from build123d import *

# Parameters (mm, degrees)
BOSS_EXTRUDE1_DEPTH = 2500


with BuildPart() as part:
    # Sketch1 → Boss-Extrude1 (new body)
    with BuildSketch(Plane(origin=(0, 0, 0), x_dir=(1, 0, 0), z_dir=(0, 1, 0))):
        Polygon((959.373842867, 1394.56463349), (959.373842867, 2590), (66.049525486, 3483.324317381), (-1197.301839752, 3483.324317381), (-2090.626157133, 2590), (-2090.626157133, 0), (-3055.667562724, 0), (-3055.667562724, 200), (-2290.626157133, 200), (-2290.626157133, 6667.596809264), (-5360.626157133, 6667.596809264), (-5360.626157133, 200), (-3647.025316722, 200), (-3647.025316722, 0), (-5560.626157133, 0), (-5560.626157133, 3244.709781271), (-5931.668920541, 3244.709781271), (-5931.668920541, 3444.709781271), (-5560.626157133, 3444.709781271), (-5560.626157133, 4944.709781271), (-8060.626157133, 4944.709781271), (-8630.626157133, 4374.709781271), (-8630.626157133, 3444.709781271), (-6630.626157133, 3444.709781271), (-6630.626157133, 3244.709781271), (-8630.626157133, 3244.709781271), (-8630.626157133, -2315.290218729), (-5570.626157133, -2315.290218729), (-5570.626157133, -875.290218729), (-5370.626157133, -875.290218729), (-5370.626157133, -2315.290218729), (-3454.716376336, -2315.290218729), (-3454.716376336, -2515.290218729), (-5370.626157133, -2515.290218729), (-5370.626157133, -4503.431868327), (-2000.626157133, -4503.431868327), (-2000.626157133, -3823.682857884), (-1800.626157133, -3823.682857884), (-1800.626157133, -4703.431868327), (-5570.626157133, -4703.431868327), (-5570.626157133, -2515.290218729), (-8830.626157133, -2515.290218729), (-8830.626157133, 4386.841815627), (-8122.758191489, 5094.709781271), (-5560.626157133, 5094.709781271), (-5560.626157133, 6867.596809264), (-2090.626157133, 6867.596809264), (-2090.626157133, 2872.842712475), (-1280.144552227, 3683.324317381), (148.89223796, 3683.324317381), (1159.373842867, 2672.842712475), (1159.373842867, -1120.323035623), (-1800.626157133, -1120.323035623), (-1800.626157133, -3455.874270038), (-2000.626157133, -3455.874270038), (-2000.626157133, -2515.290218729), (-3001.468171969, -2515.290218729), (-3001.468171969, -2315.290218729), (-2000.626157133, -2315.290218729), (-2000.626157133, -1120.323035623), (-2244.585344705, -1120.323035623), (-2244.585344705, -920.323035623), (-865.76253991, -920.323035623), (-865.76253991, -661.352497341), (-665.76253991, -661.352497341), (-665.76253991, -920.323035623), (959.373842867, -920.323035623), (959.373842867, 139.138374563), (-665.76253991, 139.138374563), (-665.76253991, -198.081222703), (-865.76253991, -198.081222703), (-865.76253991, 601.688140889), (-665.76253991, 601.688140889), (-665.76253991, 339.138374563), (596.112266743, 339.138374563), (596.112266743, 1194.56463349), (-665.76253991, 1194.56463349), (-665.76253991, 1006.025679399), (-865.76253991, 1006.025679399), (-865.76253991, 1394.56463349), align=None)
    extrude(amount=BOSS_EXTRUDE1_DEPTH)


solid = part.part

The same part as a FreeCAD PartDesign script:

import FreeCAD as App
import Part
import Sketcher

V = App.Vector
Q = App.Units.Quantity

doc = App.newDocument("Part")
body = doc.addObject("PartDesign::Body", "Body")

# Sketch on XZ plane
sketch1 = body.newObject("Sketcher::SketchObject", "Sketch")
sketch1.AttachmentSupport = (doc.getObject("XZ_Plane"), [""])
sketch1.MapMode = "FlatFace"
sketch1.addGeometry(Part.LineSegment(V(959, -2590, 0), V(959, -1395, 0)), False)
sketch1.addGeometry(Part.LineSegment(V(959, -1395, 0), V(-866, -1395, 0)), False)
sketch1.addGeometry(Part.LineSegment(V(-866, -1395, 0), V(-866, -1006, 0)), False)
sketch1.addGeometry(Part.LineSegment(V(-866, -1006, 0), V(-666, -1006, 0)), False)
sketch1.addGeometry(Part.LineSegment(V(-666, -1006, 0), V(-666, -1195, 0)), False)
sketch1.addGeometry(Part.LineSegment(V(-666, -1195, 0), V(596, -1195, 0)), False)
sketch1.addGeometry(Part.LineSegment(V(596, -1195, 0), V(596, -339, 0)), False)
sketch1.addGeometry(Part.LineSegment(V(596, -339, 0), V(-666, -339, 0)), False)
sketch1.addGeometry(Part.LineSegment(V(-666, -339, 0), V(-666, -602, 0)), False)
sketch1.addGeometry(Part.LineSegment(V(-666, -602, 0), V(-866, -602, 0)), False)
sketch1.addGeometry(Part.LineSegment(V(-866, -602, 0), V(-866, 198, 0)), False)
sketch1.addGeometry(Part.LineSegment(V(-866, 198, 0), V(-666, 198, 0)), False)
sketch1.addGeometry(Part.LineSegment(V(-666, 198, 0), V(-666, -139, 0)), False)
sketch1.addGeometry(Part.LineSegment(V(-666, -139, 0), V(959, -139, 0)), False)
sketch1.addGeometry(Part.LineSegment(V(959, -139, 0), V(959, 920, 0)), False)
sketch1.addGeometry(Part.LineSegment(V(959, 920, 0), V(-666, 920, 0)), False)
sketch1.addGeometry(Part.LineSegment(V(-666, 920, 0), V(-666, 661, 0)), False)
sketch1.addGeometry(Part.LineSegment(V(-666, 661, 0), V(-866, 661, 0)), False)
sketch1.addGeometry(Part.LineSegment(V(-866, 661, 0), V(-866, 920, 0)), False)
sketch1.addGeometry(Part.LineSegment(V(-866, 920, 0), V(-2245, 920, 0)), False)
sketch1.addGeometry(Part.LineSegment(V(-2245, 920, 0), V(-2245, 1120, 0)), False)
sketch1.addGeometry(Part.LineSegment(V(-2245, 1120, 0), V(-2001, 1120, 0)), False)
sketch1.addGeometry(Part.LineSegment(V(-2001, 1120, 0), V(-2001, 2315, 0)), False)
sketch1.addGeometry(Part.LineSegment(V(-2001, 2315, 0), V(-3001, 2315, 0)), False)
sketch1.addGeometry(Part.LineSegment(V(-3001, 2315, 0), V(-3001, 2515, 0)), False)
sketch1.addGeometry(Part.LineSegment(V(-3001, 2515, 0), V(-2001, 2515, 0)), False)
sketch1.addGeometry(Part.LineSegment(V(-2001, 2515, 0), V(-2001, 3456, 0)), False)
sketch1.addGeometry(Part.LineSegment(V(-2001, 3456, 0), V(-1801, 3456, 0)), False)
sketch1.addGeometry(Part.LineSegment(V(-1801, 3456, 0), V(-1801, 1120, 0)), False)
sketch1.addGeometry(Part.LineSegment(V(-1801, 1120, 0), V(1159, 1120, 0)), False)
sketch1.addGeometry(Part.LineSegment(V(1159, 1120, 0), V(1159, -2673, 0)), False)
sketch1.addGeometry(Part.LineSegment(V(1159, -2673, 0), V(149, -3683, 0)), False)
sketch1.addGeometry(Part.LineSegment(V(149, -3683, 0), V(-1280, -3683, 0)), False)
sketch1.addGeometry(Part.LineSegment(V(-1280, -3683, 0), V(-2091, -2873, 0)), False)
sketch1.addGeometry(Part.LineSegment(V(-2091, -2873, 0), V(-2091, -6868, 0)), False)
sketch1.addGeometry(Part.LineSegment(V(-2091, -6868, 0), V(-5561, -6868, 0)), False)
sketch1.addGeometry(Part.LineSegment(V(-5561, -6868, 0), V(-5561, -5095, 0)), False)
sketch1.addGeometry(Part.LineSegment(V(-5561, -5095, 0), V(-8123, -5095, 0)), False)
sketch1.addGeometry(Part.LineSegment(V(-8123, -5095, 0), V(-8831, -4387, 0)), False)
sketch1.addGeometry(Part.LineSegment(V(-8831, -4387, 0), V(-8831, 2515, 0)), False)
sketch1.addGeometry(Part.LineSegment(V(-8831, 2515, 0), V(-5571, 2515, 0)), False)
sketch1.addGeometry(Part.LineSegment(V(-5571, 2515, 0), V(-5571, 4703, 0)), False)
sketch1.addGeometry(Part.LineSegment(V(-5571, 4703, 0), V(-1801, 4703, 0)), False)
sketch1.addGeometry(Part.LineSegment(V(-1801, 4703, 0), V(-1801, 3824, 0)), False)
sketch1.addGeometry(Part.LineSegment(V(-1801, 3824, 0), V(-2001, 3824, 0)), False)
sketch1.addGeometry(Part.LineSegment(V(-2001, 3824, 0), V(-2001, 4503, 0)), False)
sketch1.addGeometry(Part.LineSegment(V(-2001, 4503, 0), V(-5371, 4503, 0)), False)
sketch1.addGeometry(Part.LineSegment(V(-5371, 4503, 0), V(-5371, 2515, 0)), False)
sketch1.addGeometry(Part.LineSegment(V(-5371, 2515, 0), V(-3455, 2515, 0)), False)
sketch1.addGeometry(Part.LineSegment(V(-3455, 2515, 0), V(-3455, 2315, 0)), False)
sketch1.addGeometry(Part.LineSegment(V(-3455, 2315, 0), V(-5371, 2315, 0)), False)
sketch1.addGeometry(Part.LineSegment(V(-5371, 2315, 0), V(-5371, 875, 0)), False)
sketch1.addGeometry(Part.LineSegment(V(-5371, 875, 0), V(-5571, 875, 0)), False)
sketch1.addGeometry(Part.LineSegment(V(-5571, 875, 0), V(-5571, 2315, 0)), False)
sketch1.addGeometry(Part.LineSegment(V(-5571, 2315, 0), V(-8631, 2315, 0)), False)
sketch1.addGeometry(Part.LineSegment(V(-8631, 2315, 0), V(-8631, -3245, 0)), False)
sketch1.addGeometry(Part.LineSegment(V(-8631, -3245, 0), V(-6631, -3245, 0)), False)
sketch1.addGeometry(Part.LineSegment(V(-6631, -3245, 0), V(-6631, -3445, 0)), False)
sketch1.addGeometry(Part.LineSegment(V(-6631, -3445, 0), V(-8631, -3445, 0)), False)
sketch1.addGeometry(Part.LineSegment(V(-8631, -3445, 0), V(-8631, -4375, 0)), False)
sketch1.addGeometry(Part.LineSegment(V(-8631, -4375, 0), V(-8061, -4945, 0)), False)
sketch1.addGeometry(Part.LineSegment(V(-8061, -4945, 0), V(-5561, -4945, 0)), False)
sketch1.addGeometry(Part.LineSegment(V(-5561, -4945, 0), V(-5561, -3445, 0)), False)
sketch1.addGeometry(Part.LineSegment(V(-5561, -3445, 0), V(-5932, -3445, 0)), False)
sketch1.addGeometry(Part.LineSegment(V(-5932, -3445, 0), V(-5932, -3245, 0)), False)
sketch1.addGeometry(Part.LineSegment(V(-5932, -3245, 0), V(-5561, -3245, 0)), False)
sketch1.addGeometry(Part.LineSegment(V(-5561, -3245, 0), V(-5561, 0, 0)), False)
sketch1.addGeometry(Part.LineSegment(V(-5561, 0, 0), V(-3647, 0, 0)), False)
sketch1.addGeometry(Part.LineSegment(V(-3647, 0, 0), V(-3647, -200, 0)), False)
sketch1.addGeometry(Part.LineSegment(V(-3647, -200, 0), V(-5361, -200, 0)), False)
sketch1.addGeometry(Part.LineSegment(V(-5361, -200, 0), V(-5361, -6668, 0)), False)
sketch1.addGeometry(Part.LineSegment(V(-5361, -6668, 0), V(-2291, -6668, 0)), False)
sketch1.addGeometry(Part.LineSegment(V(-2291, -6668, 0), V(-2291, -200, 0)), False)
sketch1.addGeometry(Part.LineSegment(V(-2291, -200, 0), V(-3056, -200, 0)), False)
sketch1.addGeometry(Part.LineSegment(V(-3056, -200, 0), V(-3056, 0, 0)), False)
sketch1.addGeometry(Part.LineSegment(V(-3056, 0, 0), V(-2091, 0, 0)), False)
sketch1.addGeometry(Part.LineSegment(V(-2091, 0, 0), V(-2091, -2590, 0)), False)
sketch1.addGeometry(Part.LineSegment(V(-2091, -2590, 0), V(-1197, -3483, 0)), False)
sketch1.addGeometry(Part.LineSegment(V(-1197, -3483, 0), V(66, -3483, 0)), False)
sketch1.addGeometry(Part.LineSegment(V(66, -3483, 0), V(959, -2590, 0)), False)
sketch1.addConstraint(Sketcher.Constraint("Coincident", 0, 2, 1, 1))
sketch1.addConstraint(Sketcher.Constraint("Coincident", 1, 2, 2, 1))
sketch1.addConstraint(Sketcher.Constraint("Coincident", 2, 2, 3, 1))
sketch1.addConstraint(Sketcher.Constraint("Coincident", 3, 2, 4, 1))
sketch1.addConstraint(Sketcher.Constraint("Coincident", 4, 2, 5, 1))
sketch1.addConstraint(Sketcher.Constraint("Coincident", 5, 2, 6, 1))
sketch1.addConstraint(Sketcher.Constraint("Coincident", 6, 2, 7, 1))
sketch1.addConstraint(Sketcher.Constraint("Coincident", 7, 2, 8, 1))
sketch1.addConstraint(Sketcher.Constraint("Coincident", 8, 2, 9, 1))
sketch1.addConstraint(Sketcher.Constraint("Coincident", 9, 2, 10, 1))
sketch1.addConstraint(Sketcher.Constraint("Coincident", 10, 2, 11, 1))
sketch1.addConstraint(Sketcher.Constraint("Coincident", 11, 2, 12, 1))
sketch1.addConstraint(Sketcher.Constraint("Coincident", 12, 2, 13, 1))
sketch1.addConstraint(Sketcher.Constraint("Coincident", 13, 2, 14, 1))
sketch1.addConstraint(Sketcher.Constraint("Coincident", 14, 2, 15, 1))
sketch1.addConstraint(Sketcher.Constraint("Coincident", 15, 2, 16, 1))
sketch1.addConstraint(Sketcher.Constraint("Coincident", 16, 2, 17, 1))
sketch1.addConstraint(Sketcher.Constraint("Coincident", 17, 2, 18, 1))
sketch1.addConstraint(Sketcher.Constraint("Coincident", 18, 2, 19, 1))
sketch1.addConstraint(Sketcher.Constraint("Coincident", 19, 2, 20, 1))
sketch1.addConstraint(Sketcher.Constraint("Coincident", 20, 2, 21, 1))
sketch1.addConstraint(Sketcher.Constraint("Coincident", 21, 2, 22, 1))
sketch1.addConstraint(Sketcher.Constraint("Coincident", 22, 2, 23, 1))
sketch1.addConstraint(Sketcher.Constraint("Coincident", 23, 2, 24, 1))
sketch1.addConstraint(Sketcher.Constraint("Coincident", 24, 2, 25, 1))
sketch1.addConstraint(Sketcher.Constraint("Coincident", 25, 2, 26, 1))
sketch1.addConstraint(Sketcher.Constraint("Coincident", 26, 2, 27, 1))
sketch1.addConstraint(Sketcher.Constraint("Coincident", 27, 2, 28, 1))
sketch1.addConstraint(Sketcher.Constraint("Coincident", 28, 2, 29, 1))
sketch1.addConstraint(Sketcher.Constraint("Coincident", 29, 2, 30, 1))
sketch1.addConstraint(Sketcher.Constraint("Coincident", 30, 2, 31, 1))
sketch1.addConstraint(Sketcher.Constraint("Coincident", 31, 2, 32, 1))
sketch1.addConstraint(Sketcher.Constraint("Coincident", 32, 2, 33, 1))
sketch1.addConstraint(Sketcher.Constraint("Coincident", 33, 2, 34, 1))
sketch1.addConstraint(Sketcher.Constraint("Coincident", 34, 2, 35, 1))
sketch1.addConstraint(Sketcher.Constraint("Coincident", 35, 2, 36, 1))
sketch1.addConstraint(Sketcher.Constraint("Coincident", 36, 2, 37, 1))
sketch1.addConstraint(Sketcher.Constraint("Coincident", 37, 2, 38, 1))
sketch1.addConstraint(Sketcher.Constraint("Coincident", 38, 2, 39, 1))
sketch1.addConstraint(Sketcher.Constraint("Coincident", 39, 2, 40, 1))
sketch1.addConstraint(Sketcher.Constraint("Coincident", 40, 2, 41, 1))
sketch1.addConstraint(Sketcher.Constraint("Coincident", 41, 2, 42, 1))
sketch1.addConstraint(Sketcher.Constraint("Coincident", 42, 2, 43, 1))
sketch1.addConstraint(Sketcher.Constraint("Coincident", 43, 2, 44, 1))
sketch1.addConstraint(Sketcher.Constraint("Coincident", 44, 2, 45, 1))
sketch1.addConstraint(Sketcher.Constraint("Coincident", 45, 2, 46, 1))
sketch1.addConstraint(Sketcher.Constraint("Coincident", 46, 2, 47, 1))
sketch1.addConstraint(Sketcher.Constraint("Coincident", 47, 2, 48, 1))
sketch1.addConstraint(Sketcher.Constraint("Coincident", 48, 2, 49, 1))
sketch1.addConstraint(Sketcher.Constraint("Coincident", 49, 2, 50, 1))
sketch1.addConstraint(Sketcher.Constraint("Coincident", 50, 2, 51, 1))
sketch1.addConstraint(Sketcher.Constraint("Coincident", 51, 2, 52, 1))
sketch1.addConstraint(Sketcher.Constraint("Coincident", 52, 2, 53, 1))
sketch1.addConstraint(Sketcher.Constraint("Coincident", 53, 2, 54, 1))
sketch1.addConstraint(Sketcher.Constraint("Coincident", 54, 2, 55, 1))
sketch1.addConstraint(Sketcher.Constraint("Coincident", 55, 2, 56, 1))
sketch1.addConstraint(Sketcher.Constraint("Coincident", 56, 2, 57, 1))
sketch1.addConstraint(Sketcher.Constraint("Coincident", 57, 2, 58, 1))
sketch1.addConstraint(Sketcher.Constraint("Coincident", 58, 2, 59, 1))
sketch1.addConstraint(Sketcher.Constraint("Coincident", 59, 2, 60, 1))
sketch1.addConstraint(Sketcher.Constraint("Coincident", 60, 2, 61, 1))
sketch1.addConstraint(Sketcher.Constraint("Coincident", 61, 2, 62, 1))
sketch1.addConstraint(Sketcher.Constraint("Coincident", 62, 2, 63, 1))
sketch1.addConstraint(Sketcher.Constraint("Coincident", 63, 2, 64, 1))
sketch1.addConstraint(Sketcher.Constraint("Coincident", 64, 2, 65, 1))
sketch1.addConstraint(Sketcher.Constraint("Coincident", 65, 2, 66, 1))
sketch1.addConstraint(Sketcher.Constraint("Coincident", 66, 2, 67, 1))
sketch1.addConstraint(Sketcher.Constraint("Coincident", 67, 2, 68, 1))
sketch1.addConstraint(Sketcher.Constraint("Coincident", 68, 2, 69, 1))
sketch1.addConstraint(Sketcher.Constraint("Coincident", 69, 2, 70, 1))
sketch1.addConstraint(Sketcher.Constraint("Coincident", 70, 2, 71, 1))
sketch1.addConstraint(Sketcher.Constraint("Coincident", 71, 2, 72, 1))
sketch1.addConstraint(Sketcher.Constraint("Coincident", 72, 2, 73, 1))
sketch1.addConstraint(Sketcher.Constraint("Coincident", 73, 2, 74, 1))
sketch1.addConstraint(Sketcher.Constraint("Coincident", 74, 2, 75, 1))
sketch1.addConstraint(Sketcher.Constraint("Coincident", 75, 2, 76, 1))
sketch1.addConstraint(Sketcher.Constraint("Coincident", 76, 2, 77, 1))
sketch1.addConstraint(Sketcher.Constraint("Coincident", 77, 2, 78, 1))
sketch1.addConstraint(Sketcher.Constraint("Coincident", 78, 2, 79, 1))
sketch1.addConstraint(Sketcher.Constraint("Coincident", 79, 2, 0, 1))
sketch1.addConstraint(Sketcher.Constraint("Vertical", 0))
sketch1.addConstraint(Sketcher.Constraint("Horizontal", 1))
sketch1.addConstraint(Sketcher.Constraint("Vertical", 2))
sketch1.addConstraint(Sketcher.Constraint("Horizontal", 3))
sketch1.addConstraint(Sketcher.Constraint("Vertical", 4))
sketch1.addConstraint(Sketcher.Constraint("Horizontal", 5))
sketch1.addConstraint(Sketcher.Constraint("Vertical", 6))
sketch1.addConstraint(Sketcher.Constraint("Horizontal", 7))
sketch1.addConstraint(Sketcher.Constraint("Vertical", 8))
sketch1.addConstraint(Sketcher.Constraint("Horizontal", 9))
sketch1.addConstraint(Sketcher.Constraint("Vertical", 10))
sketch1.addConstraint(Sketcher.Constraint("Horizontal", 11))
sketch1.addConstraint(Sketcher.Constraint("Vertical", 12))
sketch1.addConstraint(Sketcher.Constraint("Horizontal", 13))
sketch1.addConstraint(Sketcher.Constraint("Vertical", 14))
sketch1.addConstraint(Sketcher.Constraint("Horizontal", 15))
sketch1.addConstraint(Sketcher.Constraint("Vertical", 16))
sketch1.addConstraint(Sketcher.Constraint("Horizontal", 17))
sketch1.addConstraint(Sketcher.Constraint("Vertical", 18))
sketch1.addConstraint(Sketcher.Constraint("Horizontal", 19))
sketch1.addConstraint(Sketcher.Constraint("Vertical", 20))
sketch1.addConstraint(Sketcher.Constraint("Horizontal", 21))
sketch1.addConstraint(Sketcher.Constraint("Vertical", 22))
sketch1.addConstraint(Sketcher.Constraint("Horizontal", 23))
sketch1.addConstraint(Sketcher.Constraint("Vertical", 24))
sketch1.addConstraint(Sketcher.Constraint("Horizontal", 25))
sketch1.addConstraint(Sketcher.Constraint("Vertical", 26))
sketch1.addConstraint(Sketcher.Constraint("Horizontal", 27))
sketch1.addConstraint(Sketcher.Constraint("Vertical", 28))
sketch1.addConstraint(Sketcher.Constraint("Horizontal", 29))
sketch1.addConstraint(Sketcher.Constraint("Vertical", 30))
sketch1.addConstraint(Sketcher.Constraint("Horizontal", 32))
sketch1.addConstraint(Sketcher.Constraint("Vertical", 34))
sketch1.addConstraint(Sketcher.Constraint("Horizontal", 35))
sketch1.addConstraint(Sketcher.Constraint("Vertical", 36))
sketch1.addConstraint(Sketcher.Constraint("Horizontal", 37))
sketch1.addConstraint(Sketcher.Constraint("Vertical", 39))
sketch1.addConstraint(Sketcher.Constraint("Horizontal", 40))
sketch1.addConstraint(Sketcher.Constraint("Vertical", 41))
sketch1.addConstraint(Sketcher.Constraint("Horizontal", 42))
sketch1.addConstraint(Sketcher.Constraint("Vertical", 43))
sketch1.addConstraint(Sketcher.Constraint("Horizontal", 44))
sketch1.addConstraint(Sketcher.Constraint("Vertical", 45))
sketch1.addConstraint(Sketcher.Constraint("Horizontal", 46))
sketch1.addConstraint(Sketcher.Constraint("Vertical", 47))
sketch1.addConstraint(Sketcher.Constraint("Horizontal", 48))
sketch1.addConstraint(Sketcher.Constraint("Vertical", 49))
sketch1.addConstraint(Sketcher.Constraint("Horizontal", 50))
sketch1.addConstraint(Sketcher.Constraint("Vertical", 51))
sketch1.addConstraint(Sketcher.Constraint("Horizontal", 52))
sketch1.addConstraint(Sketcher.Constraint("Vertical", 53))
sketch1.addConstraint(Sketcher.Constraint("Horizontal", 54))
sketch1.addConstraint(Sketcher.Constraint("Vertical", 55))
sketch1.addConstraint(Sketcher.Constraint("Horizontal", 56))
sketch1.addConstraint(Sketcher.Constraint("Vertical", 57))
sketch1.addConstraint(Sketcher.Constraint("Horizontal", 58))
sketch1.addConstraint(Sketcher.Constraint("Vertical", 59))
sketch1.addConstraint(Sketcher.Constraint("Horizontal", 61))
sketch1.addConstraint(Sketcher.Constraint("Vertical", 62))
sketch1.addConstraint(Sketcher.Constraint("Horizontal", 63))
sketch1.addConstraint(Sketcher.Constraint("Vertical", 64))
sketch1.addConstraint(Sketcher.Constraint("Horizontal", 65))
sketch1.addConstraint(Sketcher.Constraint("Vertical", 66))
sketch1.addConstraint(Sketcher.Constraint("Horizontal", 67))
sketch1.addConstraint(Sketcher.Constraint("Vertical", 68))
sketch1.addConstraint(Sketcher.Constraint("Horizontal", 69))
sketch1.addConstraint(Sketcher.Constraint("Vertical", 70))
sketch1.addConstraint(Sketcher.Constraint("Horizontal", 71))
sketch1.addConstraint(Sketcher.Constraint("Vertical", 72))
sketch1.addConstraint(Sketcher.Constraint("Horizontal", 73))
sketch1.addConstraint(Sketcher.Constraint("Vertical", 74))
sketch1.addConstraint(Sketcher.Constraint("Horizontal", 75))
sketch1.addConstraint(Sketcher.Constraint("Vertical", 76))
sketch1.addConstraint(Sketcher.Constraint("Horizontal", 78))
sketch1.addConstraint(Sketcher.Constraint("PointOnObject", 66, 2, -1))
sketch1.addConstraint(Sketcher.Constraint("PointOnObject", 74, 2, -1))
sketch1.addConstraint(Sketcher.Constraint("Perpendicular", 31, 33))
sketch1.addConstraint(Sketcher.Constraint("Parallel", 33, 38))
sketch1.addConstraint(Sketcher.Constraint("Parallel", 38, 60))
sketch1.addConstraint(Sketcher.Constraint("Parallel", 60, 77))
sketch1.addConstraint(Sketcher.Constraint("Perpendicular", 77, 79))
sketch1.addConstraint(Sketcher.Constraint("Horizontal", 15, 2, 18, 2))
sketch1.addConstraint(Sketcher.Constraint("Horizontal", 21, 2, 28, 2))
sketch1.addConstraint(Sketcher.Constraint("Horizontal", 25, 2, 39, 2))
sketch1.addConstraint(Sketcher.Constraint("Horizontal", 40, 2, 47, 2))
sketch1.addConstraint(Sketcher.Constraint("Horizontal", 23, 2, 49, 2))
sketch1.addConstraint(Sketcher.Constraint("Horizontal", 50, 2, 53, 2))
sketch1.addConstraint(Sketcher.Constraint("Horizontal", 58, 2, 62, 2))
sketch1.addConstraint(Sketcher.Constraint("Horizontal", 56, 2, 64, 2))
sketch1.addConstraint(Sketcher.Constraint("Horizontal", 69, 2, 72, 2))
sketch1.addConstraint(Sketcher.Constraint("Horizontal", 76, 2, 79, 2))
sketch1.addConstraint(Sketcher.Constraint("Vertical", 4, 2, 7, 2))
sketch1.addConstraint(Sketcher.Constraint("Vertical", 2, 2, 9, 2))
sketch1.addConstraint(Sketcher.Constraint("Vertical", 8, 2, 11, 2))
sketch1.addConstraint(Sketcher.Constraint("Vertical", 0, 2, 13, 2))
sketch1.addConstraint(Sketcher.Constraint("Vertical", 12, 2, 15, 2))
sketch1.addConstraint(Sketcher.Constraint("Vertical", 10, 2, 17, 2))
sketch1.addConstraint(Sketcher.Constraint("Vertical", 22, 2, 25, 2))
sketch1.addConstraint(Sketcher.Constraint("Vertical", 28, 2, 42, 2))
sketch1.addConstraint(Sketcher.Constraint("Vertical", 26, 2, 44, 2))
sketch1.addConstraint(Sketcher.Constraint("Vertical", 47, 2, 50, 2))
sketch1.addConstraint(Sketcher.Constraint("Vertical", 41, 2, 52, 2))
sketch1.addConstraint(Sketcher.Constraint("Vertical", 55, 2, 58, 2))
sketch1.addConstraint(Sketcher.Constraint("Vertical", 36, 2, 61, 2))
sketch1.addConstraint(Sketcher.Constraint("Vertical", 62, 2, 65, 2))
sketch1.addConstraint(Sketcher.Constraint("Vertical", 34, 2, 75, 2))
sketch1.addConstraint(Sketcher.Constraint("Equal", 17, 27))
sketch1.addConstraint(Sketcher.Constraint("Equal", 44, 52))
sketch1.addConstraint(Sketcher.Constraint("Equal", 52, 20))
sketch1.addConstraint(Sketcher.Constraint("Equal", 20, 24))
sketch1.addConstraint(Sketcher.Constraint("Equal", 49, 57))
sketch1.addConstraint(Sketcher.Constraint("Equal", 64, 68))
sketch1.addConstraint(Sketcher.Constraint("Equal", 77, 79))
sketch1.addConstraint(Sketcher.Constraint("DistanceX", 3, 1, 3, 2, Q("200 mm")))
sketch1.addConstraint(Sketcher.Constraint("DistanceX", 29, 1, 29, 2, Q("2960 mm")))
sketch1.addConstraint(Sketcher.Constraint("DistanceX", 35, 2, 35, 1, Q("3470 mm")))
sketch1.addConstraint(Sketcher.Constraint("DistanceX", 40, 1, 40, 2, Q("3260 mm")))
sketch1.addConstraint(Sketcher.Constraint("DistanceX", 42, 1, 42, 2, Q("3770 mm")))
sketch1.addConstraint(Sketcher.Constraint("DistanceX", 54, 2, 54, 1, Q("3060 mm")))
sketch1.addConstraint(Sketcher.Constraint("DistanceX", 56, 1, 56, 2, Q("2000 mm")))
sketch1.addConstraint(Sketcher.Constraint("DistanceX", 61, 1, 61, 2, Q("2500 mm")))
sketch1.addConstraint(Sketcher.Constraint("DistanceX", 71, 1, 71, 2, Q("3070 mm")))
sketch1.addConstraint(Sketcher.Constraint("DistanceY", 51, 2, 51, 1, Q("1440 mm")))
sketch1.addConstraint(Sketcher.Constraint("DistanceY", 55, 2, 55, 1, Q("5560 mm")))
sketch1.addConstraint(Sketcher.Constraint("DistanceY", 59, 2, 59, 1, Q("930 mm")))
sketch1.addConstraint(Sketcher.Constraint("DistanceY", 62, 1, 62, 2, Q("1500 mm")))
sketch1.addConstraint(Sketcher.Constraint("DistanceY", 76, 2, 76, 1, Q("2590 mm")))
sketch1.addConstraint(Sketcher.Constraint("DistanceX", 32, 2, 32, 1, Q("1429.03679 mm")))
sketch1.addConstraint(Sketcher.Constraint("DistanceX", 48, 1, 48, 2, Q("1915.909781 mm")))
sketch1.addConstraint(Sketcher.Constraint("DistanceX", 67, 1, 67, 2, Q("1913.60084 mm")))
sketch1.addConstraint(Sketcher.Constraint("DistanceX", 69, 2, 69, 1, Q("1713.60084 mm")))
sketch1.addConstraint(Sketcher.Constraint("DistanceY", 6, 1, 6, 2, Q("855.426259 mm")))
sketch1.addConstraint(Sketcher.Constraint("DistanceY", 14, 1, 14, 2, Q("1059.46141 mm")))
sketch1.addConstraint(Sketcher.Constraint("DistanceY", 16, 2, 16, 1, Q("258.970538 mm")))
sketch1.addConstraint(Sketcher.Constraint("DistanceY", 26, 1, 26, 2, Q("940.584051 mm")))
sketch1.addConstraint(Sketcher.Constraint("DistanceY", 30, 2, 30, 1, Q("3793.165748 mm")))
sketch1.addConstraint(Sketcher.Constraint("DistanceY", 41, 1, 41, 2, Q("2188.14165 mm")))
sketch1.addConstraint(Sketcher.Constraint("DistanceY", 43, 2, 43, 1, Q("879.74901 mm")))
sketch1.addConstraint(Sketcher.Constraint("DistanceY", 45, 1, 45, 2, Q("679.74901 mm")))
sketch1.addConstraint(Sketcher.Constraint("DistanceY", 66, 1, 66, 2, Q("3244.709781 mm")))
sketch1.addConstraint(Sketcher.Constraint("DistanceY", 70, 2, 70, 1, Q("6467.596809 mm")))
sketch1.addConstraint(Sketcher.Constraint("Distance", 31, Q("1429.03679 mm")))
sketch1.addConstraint(Sketcher.Constraint("DistanceX", 1, 2, 1, 1, Q("1825.136383 mm")))
sketch1.addConstraint(Sketcher.Constraint("DistanceX", 5, 1, 5, 2, Q("1261.874807 mm")))
sketch1.addConstraint(Sketcher.Constraint("DistanceX", 19, 2, 19, 1, Q("1378.822805 mm")))
sketch1.addConstraint(Sketcher.Constraint("DistanceX", 21, 1, 21, 2, Q("243.959188 mm")))
sketch1.addConstraint(Sketcher.Constraint("DistanceX", 23, 2, 23, 1, Q("1000.842015 mm")))
sketch1.addConstraint(Sketcher.Constraint("DistanceX", 37, 2, 37, 1, Q("2562.132034 mm")))
sketch1.addConstraint(Sketcher.Constraint("DistanceX", 63, 2, 63, 1, Q("371.042763 mm")))
sketch1.addConstraint(Sketcher.Constraint("DistanceX", 73, 2, 73, 1, Q("765.041406 mm")))
sketch1.addConstraint(Sketcher.Constraint("DistanceX", 78, 1, 78, 2, Q("1263.351365 mm")))
sketch1.addConstraint(Sketcher.Constraint("DistanceY", 0, 1, 0, 2, Q("1195.435367 mm")))
sketch1.addConstraint(Sketcher.Constraint("DistanceY", 2, 1, 2, 2, Q("388.538954 mm")))
sketch1.addConstraint(Sketcher.Constraint("DistanceY", 4, 2, 4, 1, Q("188.538954 mm")))
sketch1.addConstraint(Sketcher.Constraint("DistanceY", 8, 2, 8, 1, Q("262.549766 mm")))
sketch1.addConstraint(Sketcher.Constraint("DistanceY", 10, 1, 10, 2, Q("799.769364 mm")))
sketch1.addConstraint(Sketcher.Constraint("DistanceY", 12, 2, 12, 1, Q("337.219597 mm")))
sketch1.addConstraint(Sketcher.Constraint("DistanceY", 34, 2, 34, 1, Q("3994.754097 mm")))
sketch1.addConstraint(Sketcher.Constraint("DistanceY", 36, 1, 36, 2, Q("1772.887028 mm")))
sketch1.addConstraint(Sketcher.Constraint("DistanceX", 1, 2, -1, 1, Q("865.76254 mm")))
pad1 = body.newObject("PartDesign::Pad", "Pad")
pad1.Profile = sketch1
pad1.Length = 2500
pad1.Reversed = True

doc.recompute()
